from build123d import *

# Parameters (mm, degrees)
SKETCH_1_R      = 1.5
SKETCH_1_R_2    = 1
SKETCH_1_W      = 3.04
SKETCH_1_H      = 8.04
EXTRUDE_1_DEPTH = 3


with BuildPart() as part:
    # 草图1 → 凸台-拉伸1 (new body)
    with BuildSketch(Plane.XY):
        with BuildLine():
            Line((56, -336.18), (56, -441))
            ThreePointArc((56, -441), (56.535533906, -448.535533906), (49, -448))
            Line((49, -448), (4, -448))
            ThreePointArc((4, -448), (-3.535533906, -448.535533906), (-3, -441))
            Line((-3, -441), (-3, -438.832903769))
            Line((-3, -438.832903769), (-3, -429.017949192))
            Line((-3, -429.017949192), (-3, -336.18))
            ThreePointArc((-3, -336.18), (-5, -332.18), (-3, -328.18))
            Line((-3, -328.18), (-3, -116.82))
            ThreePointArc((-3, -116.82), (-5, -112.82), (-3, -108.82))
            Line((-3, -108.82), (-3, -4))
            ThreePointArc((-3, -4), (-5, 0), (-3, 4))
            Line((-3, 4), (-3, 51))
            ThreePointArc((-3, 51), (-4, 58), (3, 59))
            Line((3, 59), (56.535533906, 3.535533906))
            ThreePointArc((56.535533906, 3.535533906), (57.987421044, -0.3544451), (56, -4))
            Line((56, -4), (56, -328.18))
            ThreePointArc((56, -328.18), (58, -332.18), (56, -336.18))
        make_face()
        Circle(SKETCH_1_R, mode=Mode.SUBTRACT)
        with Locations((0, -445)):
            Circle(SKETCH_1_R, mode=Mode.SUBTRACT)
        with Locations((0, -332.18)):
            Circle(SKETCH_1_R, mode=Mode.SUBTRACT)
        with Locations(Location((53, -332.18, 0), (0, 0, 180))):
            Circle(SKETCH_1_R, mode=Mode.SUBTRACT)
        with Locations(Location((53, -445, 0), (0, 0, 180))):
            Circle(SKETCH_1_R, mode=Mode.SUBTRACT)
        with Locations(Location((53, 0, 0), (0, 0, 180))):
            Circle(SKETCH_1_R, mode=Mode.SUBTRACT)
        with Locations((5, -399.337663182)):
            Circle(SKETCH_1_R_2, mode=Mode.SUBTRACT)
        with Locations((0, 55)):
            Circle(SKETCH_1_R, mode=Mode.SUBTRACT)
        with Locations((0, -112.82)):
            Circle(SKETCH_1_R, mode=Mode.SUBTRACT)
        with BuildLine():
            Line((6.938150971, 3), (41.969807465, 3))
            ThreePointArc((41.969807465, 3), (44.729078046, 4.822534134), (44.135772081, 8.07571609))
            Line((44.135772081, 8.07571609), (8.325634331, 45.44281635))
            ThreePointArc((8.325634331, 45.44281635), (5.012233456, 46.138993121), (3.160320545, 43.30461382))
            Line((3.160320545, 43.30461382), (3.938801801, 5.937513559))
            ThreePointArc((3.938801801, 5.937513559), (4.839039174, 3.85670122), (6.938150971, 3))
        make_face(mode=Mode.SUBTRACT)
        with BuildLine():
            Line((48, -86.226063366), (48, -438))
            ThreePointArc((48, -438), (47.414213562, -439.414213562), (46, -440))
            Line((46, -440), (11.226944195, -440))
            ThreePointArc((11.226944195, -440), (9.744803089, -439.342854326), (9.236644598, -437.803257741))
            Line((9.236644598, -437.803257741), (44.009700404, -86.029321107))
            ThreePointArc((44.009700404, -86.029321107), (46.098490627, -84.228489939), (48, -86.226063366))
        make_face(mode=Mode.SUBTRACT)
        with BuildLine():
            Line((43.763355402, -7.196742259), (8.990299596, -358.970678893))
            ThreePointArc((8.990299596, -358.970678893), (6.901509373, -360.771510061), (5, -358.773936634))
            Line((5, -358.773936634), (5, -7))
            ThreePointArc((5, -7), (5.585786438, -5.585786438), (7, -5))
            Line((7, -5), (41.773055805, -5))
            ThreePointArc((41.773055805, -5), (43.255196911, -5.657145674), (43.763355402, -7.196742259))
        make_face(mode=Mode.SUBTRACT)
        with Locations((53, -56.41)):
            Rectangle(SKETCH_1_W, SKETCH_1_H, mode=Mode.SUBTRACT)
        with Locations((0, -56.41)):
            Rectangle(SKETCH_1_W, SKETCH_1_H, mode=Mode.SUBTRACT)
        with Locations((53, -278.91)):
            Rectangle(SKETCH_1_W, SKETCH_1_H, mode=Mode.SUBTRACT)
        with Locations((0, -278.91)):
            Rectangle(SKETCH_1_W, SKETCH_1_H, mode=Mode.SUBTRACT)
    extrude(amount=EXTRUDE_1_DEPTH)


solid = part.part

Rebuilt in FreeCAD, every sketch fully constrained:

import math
import FreeCAD as App
import Part
import Sketcher

V = App.Vector
Q = App.Units.Quantity


def add_polygon(sketch, points):
    """Adds a closed chain of lines whose ends are joined by coincident constraints."""
    first, n = sketch.GeometryCount, len(points)
    for a, b in zip(points, points[1:] + points[:1]):
        sketch.addGeometry(Part.LineSegment(App.Vector(*a, 0), App.Vector(*b, 0)), False)
    for i in range(n):
        sketch.addConstraint(Sketcher.Constraint("Coincident", first + i, 2, first + (i + 1) % n, 1))

doc = App.newDocument("Part")
body = doc.addObject("PartDesign::Body", "Body")

sketch1 = doc.addObject("Sketcher::SketchObject", "Sketch")
body.addObject(sketch1)
sketch1.AttachmentSupport = (doc.XY_Plane, [""])
sketch1.MapMode = "FlatFace"
sketch1.addGeometry(Part.LineSegment(V(56, -441, 0), V(56, -336.18, 0)), False)
sketch1.addGeometry(Part.ArcOfCircle(Part.Circle(V(53, -332.18, 0), V(0, 0, 1), 5), math.radians(-53.130102), math.radians(53.130102)), False)
sketch1.addGeometry(Part.LineSegment(V(56, -328.18, 0), V(56, -4, 0)), False)
sketch1.addGeometry(Part.ArcOfCircle(Part.Circle(V(53, 0, 0), V(0, 0, 1), 5), math.radians(-53.130102), math.radians(45)), False)
sketch1.addGeometry(Part.LineSegment(V(56.535534, 3.535534, 0), V(3, 59, 0)), False)
sketch1.addGeometry(Part.ArcOfCircle(Part.Circle(V(0, 55, 0), V(0, 0, 1), 5), math.radians(53.130102), math.radians(233.130102)), False)
sketch1.addGeometry(Part.LineSegment(V(-3, 51, 0), V(-3, 4, 0)), False)
sketch1.addGeometry(Part.ArcOfCircle(Part.Circle(V(0, 0, 0), V(0, 0, 1), 5), math.radians(126.869898), math.radians(233.130102)), False)
sketch1.addGeometry(Part.LineSegment(V(-3, -4, 0), V(-3, -108.82, 0)), False)
sketch1.addGeometry(Part.ArcOfCircle(Part.Circle(V(0, -112.82, 0), V(0, 0, 1), 5), math.radians(126.869898), math.radians(233.130102)), False)
sketch1.addGeometry(Part.LineSegment(V(-3, -116.82, 0), V(-3, -328.18, 0)), False)
sketch1.addGeometry(Part.ArcOfCircle(Part.Circle(V(0, -332.18, 0), V(0, 0, 1), 5), math.radians(126.869898), math.radians(233.130102)), False)
sketch1.addGeometry(Part.LineSegment(V(-3, -336.18, 0), V(-3, -441, 0)), False)
sketch1.addGeometry(Part.ArcOfCircle(Part.Circle(V(0, -445, 0), V(0, 0, 1), 5), math.radians(126.869898), math.radians(323.130102)), False)
sketch1.addGeometry(Part.LineSegment(V(4, -448, 0), V(49, -448, 0)), False)
sketch1.addGeometry(Part.ArcOfCircle(Part.Circle(V(53, -445, 0), V(0, 0, 1), 5), math.radians(-143.130102), math.radians(53.130102)), False)
sketch1.addGeometry(Part.Circle(V(53, -445, 0), V(0, 0, 1), 1.5), False)
sketch1.addGeometry(Part.Circle(V(53, -332.18, 0), V(0, 0, 1), 1.5), False)
add_polygon(sketch1, [(51.48, -282.93), (51.48, -274.89), (54.52, -274.89), (54.52, -282.93)])
sketch1.addGeometry(Part.LineSegment(V(48, -86.226063, 0), V(48, -438, 0)), False)
sketch1.addGeometry(Part.ArcOfCircle(Part.Circle(V(46, -438, 0), V(0, 0, 1), 2), math.radians(-90), math.radians(0)), False)
sketch1.addGeometry(Part.LineSegment(V(46, -440, 0), V(11.226944, -440, 0)), False)
sketch1.addGeometry(Part.ArcOfCircle(Part.Circle(V(11.226944, -438, 0), V(0, 0, 1), 2), math.radians(174.354619), math.radians(270)), False)
sketch1.addGeometry(Part.LineSegment(V(9.236645, -437.803258, 0), V(44.0097, -86.029321, 0)), False)
sketch1.addGeometry(Part.ArcOfCircle(Part.Circle(V(46, -86.226063, 0), V(0, 0, 1), 2), math.radians(0), math.radians(174.354619)), False)
sketch1.addGeometry(Part.Circle(V(0, -445, 0), V(0, 0, 1), 1.5), False)
sketch1.addGeometry(Part.Circle(V(5, -399.337663, 0), V(0, 0, 1), 1), False)
sketch1.addGeometry(Part.Circle(V(0, -332.18, 0), V(0, 0, 1), 1.5), False)
add_polygon(sketch1, [(-1.52, -282.93), (-1.52, -274.89), (1.52, -274.89), (1.52, -282.93)])
add_polygon(sketch1, [(51.48, -60.43), (51.48, -52.39), (54.52, -52.39), (54.52, -60.43)])
sketch1.addGeometry(Part.Circle(V(53, 0, 0), V(0, 0, 1), 1.5), False)
sketch1.addGeometry(Part.LineSegment(V(43.763355, -7.196742, 0), V(8.9903, -358.970679, 0)), False)
sketch1.addGeometry(Part.ArcOfCircle(Part.Circle(V(7, -358.773937, 0), V(0, 0, 1), 2), math.radians(180), math.radians(354.354619)), False)
sketch1.addGeometry(Part.LineSegment(V(5, -358.773937, 0), V(5, -7, 0)), False)
sketch1.addGeometry(Part.ArcOfCircle(Part.Circle(V(7, -7, 0), V(0, 0, 1), 2), math.radians(90), math.radians(180)), False)
sketch1.addGeometry(Part.LineSegment(V(7, -5, 0), V(41.773056, -5, 0)), False)
sketch1.addGeometry(Part.ArcOfCircle(Part.Circle(V(41.773056, -7, 0), V(0, 0, 1), 2), math.radians(-5.645381), math.radians(90)), False)
sketch1.addGeometry(Part.Circle(V(0, -112.82, 0), V(0, 0, 1), 1.5), False)
sketch1.addGeometry(Part.ArcOfCircle(Part.Circle(V(6.938151, 6, 0), V(0, 0, 1), 3), math.radians(-178.806511), math.radians(-90)), False)
sketch1.addGeometry(Part.LineSegment(V(3.938802, 5.937514, 0), V(3.160321, 43.304614, 0)), False)
sketch1.addGeometry(Part.ArcOfCircle(Part.Circle(V(6.15967, 43.3671, 0), V(0, 0, 1), 3), math.radians(43.781125), math.radians(181.193489)), False)
sketch1.addGeometry(Part.LineSegment(V(8.325634, 45.442816, 0), V(44.135772, 8.075716, 0)), False)
sketch1.addGeometry(Part.ArcOfCircle(Part.Circle(V(41.969807, 6, 0), V(0, 0, 1), 3), math.radians(-90), math.radians(43.781125)), False)
sketch1.addGeometry(Part.LineSegment(V(41.969807, 3, 0), V(6.938151, 3, 0)), False)
add_polygon(sketch1, [(-1.52, -60.43), (-1.52, -52.39), (1.52, -52.39), (1.52, -60.43)])
sketch1.addGeometry(Part.Circle(V(0, 0, 0), V(0, 0, 1), 1.5), False)
sketch1.addGeometry(Part.Circle(V(0, 55, 0), V(0, 0, 1), 1.5), False)
sketch1.addConstraint(Sketcher.Constraint("Coincident", 0, 2, 1, 1))
sketch1.addConstraint(Sketcher.Constraint("Coincident", 1, 2, 2, 1))
sketch1.addConstraint(Sketcher.Constraint("Coincident", 2, 2, 3, 1))
sketch1.addConstraint(Sketcher.Constraint("Coincident", 3, 2, 4, 1))
sketch1.addConstraint(Sketcher.Constraint("Coincident", 4, 2, 5, 1))
sketch1.addConstraint(Sketcher.Constraint("Coincident", 5, 2, 6, 1))
sketch1.addConstraint(Sketcher.Constraint("Coincident", 6, 2, 7, 1))
sketch1.addConstraint(Sketcher.Constraint("Coincident", 7, 2, 8, 1))
sketch1.addConstraint(Sketcher.Constraint("Coincident", 8, 2, 9, 1))
sketch1.addConstraint(Sketcher.Constraint("Coincident", 9, 2, 10, 1))
sketch1.addConstraint(Sketcher.Constraint("Coincident", 10, 2, 11, 1))
sketch1.addConstraint(Sketcher.Constraint("Coincident", 11, 2, 12, 1))
sketch1.addConstraint(Sketcher.Constraint("Coincident", 12, 2, 13, 1))
sketch1.addConstraint(Sketcher.Constraint("Coincident", 13, 2, 14, 1))
sketch1.addConstraint(Sketcher.Constraint("Coincident", 14, 2, 15, 1))
sketch1.addConstraint(Sketcher.Constraint("Coincident", 15, 2, 0, 1))
sketch1.addConstraint(Sketcher.Constraint("Coincident", 22, 2, 23, 2))
sketch1.addConstraint(Sketcher.Constraint("Coincident", 23, 1, 24, 1))
sketch1.addConstraint(Sketcher.Constraint("Coincident", 24, 2, 25, 2))
sketch1.addConstraint(Sketcher.Constraint("Coincident", 25, 1, 26, 1))
sketch1.addConstraint(Sketcher.Constraint("Coincident", 26, 2, 27, 2))
sketch1.addConstraint(Sketcher.Constraint("Coincident", 27, 1, 22, 1))
sketch1.addConstraint(Sketcher.Constraint("Coincident", 40, 2, 41, 2))
sketch1.addConstraint(Sketcher.Constraint("Coincident", 41, 1, 42, 1))
sketch1.addConstraint(Sketcher.Constraint("Coincident", 42, 2, 43, 2))
sketch1.addConstraint(Sketcher.Constraint("Coincident", 43, 1, 44, 1))
sketch1.addConstraint(Sketcher.Constraint("Coincident", 44, 2, 45, 2))
sketch1.addConstraint(Sketcher.Constraint("Coincident", 45, 1, 40, 1))
sketch1.addConstraint(Sketcher.Constraint("Coincident", 47, 1, 48, 1))
sketch1.addConstraint(Sketcher.Constraint("Coincident", 48, 2, 49, 2))
sketch1.addConstraint(Sketcher.Constraint("Coincident", 49, 1, 50, 1))
sketch1.addConstraint(Sketcher.Constraint("Coincident", 50, 2, 51, 2))
sketch1.addConstraint(Sketcher.Constraint("Coincident", 51, 1, 52, 1))
sketch1.addConstraint(Sketcher.Constraint("Coincident", 52, 2, 47, 2))
sketch1.addConstraint(Sketcher.Constraint("Vertical", 0))
sketch1.addConstraint(Sketcher.Constraint("Vertical", 2))
sketch1.addConstraint(Sketcher.Constraint("Vertical", 6))
sketch1.addConstraint(Sketcher.Constraint("Vertical", 8))
sketch1.addConstraint(Sketcher.Constraint("Vertical", 10))
sketch1.addConstraint(Sketcher.Constraint("Vertical", 12))
sketch1.addConstraint(Sketcher.Constraint("Horizontal", 14))
sketch1.addConstraint(Sketcher.Constraint("Vertical", 18))
sketch1.addConstraint(Sketcher.Constraint("Horizontal", 19))
sketch1.addConstraint(Sketcher.Constraint("Vertical", 20))
sketch1.addConstraint(Sketcher.Constraint("Horizontal", 21))
sketch1.addConstraint(Sketcher.Constraint("Vertical", 22))
sketch1.addConstraint(Sketcher.Constraint("Horizontal", 24))
sketch1.addConstraint(Sketcher.Constraint("Vertical", 31))
sketch1.addConstraint(Sketcher.Constraint("Horizontal", 32))
sketch1.addConstraint(Sketcher.Constraint("Vertical", 33))
sketch1.addConstraint(Sketcher.Constraint("Horizontal", 34))
sketch1.addConstraint(Sketcher.Constraint("Vertical", 35))
sketch1.addConstraint(Sketcher.Constraint("Horizontal", 36))
sketch1.addConstraint(Sketcher.Constraint("Vertical", 37))
sketch1.addConstraint(Sketcher.Constraint("Horizontal", 38))
sketch1.addConstraint(Sketcher.Constraint("Vertical", 42))
sketch1.addConstraint(Sketcher.Constraint("Horizontal", 44))
sketch1.addConstraint(Sketcher.Constraint("Horizontal", 52))
sketch1.addConstraint(Sketcher.Constraint("Vertical", 53))
sketch1.addConstraint(Sketcher.Constraint("Horizontal", 54))
sketch1.addConstraint(Sketcher.Constraint("Vertical", 55))
sketch1.addConstraint(Sketcher.Constraint("Horizontal", 56))
sketch1.addConstraint(Sketcher.Constraint("Coincident", 7, 3, -1, 1))
sketch1.addConstraint(Sketcher.Constraint("Coincident", 57, 3, -1, 1))
sketch1.addConstraint(Sketcher.Constraint("Coincident", 16, 3, 15, 3))
sketch1.addConstraint(Sketcher.Constraint("Coincident", 17, 3, 1, 3))
sketch1.addConstraint(Sketcher.Constraint("Coincident", 28, 3, 13, 3))
sketch1.addConstraint(Sketcher.Constraint("Coincident", 30, 3, 11, 3))
sketch1.addConstraint(Sketcher.Constraint("Coincident", 39, 3, 3, 3))
sketch1.addConstraint(Sketcher.Constraint("Coincident", 46, 3, 9, 3))
sketch1.addConstraint(Sketcher.Constraint("Coincident", 58, 3, 5, 3))
sketch1.addConstraint(Sketcher.Constraint("PointOnObject", 3, 3, -1))
sketch1.addConstraint(Sketcher.Constraint("PointOnObject", 5, 3, -2))
sketch1.addConstraint(Sketcher.Constraint("PointOnObject", 9, 3, -2))
sketch1.addConstraint(Sketcher.Constraint("PointOnObject", 11, 3, -2))
sketch1.addConstraint(Sketcher.Constraint("PointOnObject", 13, 3, -2))
sketch1.addConstraint(Sketcher.Constraint("Diameter", 16, Q("3 mm")))
sketch1.addConstraint(Sketcher.Constraint("Diameter", 17, Q("3 mm")))
sketch1.addConstraint(Sketcher.Constraint("Diameter", 28, Q("3 mm")))
sketch1.addConstraint(Sketcher.Constraint("Diameter", 29, Q("2 mm")))
sketch1.addConstraint(Sketcher.Constraint("Diameter", 30, Q("3 mm")))
sketch1.addConstraint(Sketcher.Constraint("Diameter", 39, Q("3 mm")))
sketch1.addConstraint(Sketcher.Constraint("Diameter", 46, Q("3 mm")))
sketch1.addConstraint(Sketcher.Constraint("Diameter", 57, Q("3 mm")))
sketch1.addConstraint(Sketcher.Constraint("Diameter", 58, Q("3 mm")))
sketch1.addConstraint(Sketcher.Constraint("Radius", 1, Q("5 mm")))
sketch1.addConstraint(Sketcher.Constraint("Radius", 3, Q("5 mm")))
sketch1.addConstraint(Sketcher.Constraint("Radius", 5, Q("5 mm")))
sketch1.addConstraint(Sketcher.Constraint("Radius", 7, Q("5 mm")))
sketch1.addConstraint(Sketcher.Constraint("Radius", 9, Q("5 mm")))
sketch1.addConstraint(Sketcher.Constraint("Radius", 11, Q("5 mm")))
sketch1.addConstraint(Sketcher.Constraint("Radius", 13, Q("5 mm")))
sketch1.addConstraint(Sketcher.Constraint("Radius", 15, Q("5 mm")))
sketch1.addConstraint(Sketcher.Constraint("Radius", 23, Q("2 mm")))
sketch1.addConstraint(Sketcher.Constraint("Radius", 25, Q("2 mm")))
sketch1.addConstraint(Sketcher.Constraint("Radius", 27, Q("2 mm")))
sketch1.addConstraint(Sketcher.Constraint("Radius", 41, Q("2 mm")))
sketch1.addConstraint(Sketcher.Constraint("Radius", 43, Q("2 mm")))
sketch1.addConstraint(Sketcher.Constraint("Radius", 45, Q("2 mm")))
sketch1.addConstraint(Sketcher.Constraint("Radius", 47, Q("3 mm")))
sketch1.addConstraint(Sketcher.Constraint("Radius", 49, Q("3 mm")))
sketch1.addConstraint(Sketcher.Constraint("Radius", 51, Q("3 mm")))
sketch1.addConstraint(Sketcher.Constraint("DistanceX", 14, 1, 14, 2, Q("45 mm")))
sketch1.addConstraint(Sketcher.Constraint("DistanceY", 6, 2, 6, 1, Q("47 mm")))
sketch1.addConstraint(Sketcher.Constraint("DistanceX", -1, 1, 1, 3, Q("53 mm")))
sketch1.addConstraint(Sketcher.Constraint("DistanceX", -1, 1, 3, 3, Q("53 mm")))
sketch1.addConstraint(Sketcher.Constraint("DistanceY", -1, 1, 5, 3, Q("55 mm")))
sketch1.addConstraint(Sketcher.Constraint("DistanceY", 13, 3, -1, 1, Q("445 mm")))
sketch1.addConstraint(Sketcher.Constraint("DistanceX", -1, 1, 15, 3, Q("53 mm")))
sketch1.addConstraint(Sketcher.Constraint("DistanceY", 15, 3, -1, 1, Q("445 mm")))
sketch1.addConstraint(Sketcher.Constraint("DistanceX", -1, 1, 23, 3, Q("46 mm")))
sketch1.addConstraint(Sketcher.Constraint("DistanceY", 23, 3, -1, 1, Q("438 mm")))
sketch1.addConstraint(Sketcher.Constraint("DistanceX", -1, 1, 29, 3, Q("5 mm")))
sketch1.addConstraint(Sketcher.Constraint("DistanceX", -1, 1, 41, 3, Q("7 mm")))
sketch1.addConstraint(Sketcher.Constraint("DistanceY", 43, 3, -1, 1, Q("7 mm")))
sketch1.addConstraint(Sketcher.Constraint("DistanceY", -1, 1, 47, 3, Q("6 mm")))
sketch1.addConstraint(Sketcher.Constraint("DistanceX", -1, 1, 0, 2, Q("56 mm")))
sketch1.addConstraint(Sketcher.Constraint("DistanceX", -1, 1, 1, 2, Q("56 mm")))
sketch1.addConstraint(Sketcher.Constraint("DistanceX", -1, 1, 4, 2, Q("3 mm")))
sketch1.addConstraint(Sketcher.Constraint("DistanceX", 7, 2, -1, 1, Q("3 mm")))
sketch1.addConstraint(Sketcher.Constraint("DistanceX", 9, 2, -1, 1, Q("3 mm")))
sketch1.addConstraint(Sketcher.Constraint("DistanceX", 11, 2, -1, 1, Q("3 mm")))
sketch1.addConstraint(Sketcher.Constraint("DistanceY", 22, 2, -1, 1, Q("438 mm")))
sketch1.addConstraint(Sketcher.Constraint("DistanceX", -1, 1, 23, 1, Q("46 mm")))
sketch1.addConstraint(Sketcher.Constraint("DistanceY", 42, 2, -1, 1, Q("7 mm")))
sketch1.addConstraint(Sketcher.Constraint("DistanceX", -1, 1, 43, 1, Q("7 mm")))
sketch1.addConstraint(Sketcher.Constraint("DistanceX", 19, 1, 19, 2, Q("3.04 mm")))
sketch1.addConstraint(Sketcher.Constraint("DistanceX", 32, 1, 32, 2, Q("3.04 mm")))
sketch1.addConstraint(Sketcher.Constraint("DistanceX", 36, 1, 36, 2, Q("3.04 mm")))
sketch1.addConstraint(Sketcher.Constraint("DistanceX", 54, 1, 54, 2, Q("3.04 mm")))
sketch1.addConstraint(Sketcher.Constraint("DistanceY", 0, 1, 0, 2, Q("104.82 mm")))
sketch1.addConstraint(Sketcher.Constraint("DistanceY", 8, 2, 8, 1, Q("104.82 mm")))
sketch1.addConstraint(Sketcher.Constraint("DistanceY", 10, 2, 10, 1, Q("211.36 mm")))
sketch1.addConstraint(Sketcher.Constraint("DistanceY", 18, 1, 18, 2, Q("8.04 mm")))
sketch1.addConstraint(Sketcher.Constraint("DistanceY", 31, 1, 31, 2, Q("8.04 mm")))
sketch1.addConstraint(Sketcher.Constraint("DistanceY", 35, 1, 35, 2, Q("8.04 mm")))
sketch1.addConstraint(Sketcher.Constraint("DistanceY", 53, 1, 53, 2, Q("8.04 mm")))
sketch1.addConstraint(Sketcher.Constraint("DistanceX", -1, 1, 18, 2, Q("51.48 mm")))
sketch1.addConstraint(Sketcher.Constraint("DistanceY", 18, 2, -1, 1, Q("274.89 mm")))
sketch1.addConstraint(Sketcher.Constraint("DistanceX", 31, 2, -1, 1, Q("1.52 mm")))
sketch1.addConstraint(Sketcher.Constraint("DistanceY", 31, 2, -1, 1, Q("274.89 mm")))
sketch1.addConstraint(Sketcher.Constraint("DistanceX", -1, 1, 35, 2, Q("51.48 mm")))
sketch1.addConstraint(Sketcher.Constraint("DistanceY", 35, 2, -1, 1, Q("52.39 mm")))
sketch1.addConstraint(Sketcher.Constraint("DistanceX", 53, 2, -1, 1, Q("1.52 mm")))
sketch1.addConstraint(Sketcher.Constraint("DistanceY", 53, 2, -1, 1, Q("52.39 mm")))
sketch1.addConstraint(Sketcher.Constraint("DistanceY", -1, 1, 49, 3, Q("43.3671 mm")))
sketch1.addConstraint(Sketcher.Constraint("DistanceX", -1, 1, 26, 2, Q("44.0097 mm")))
sketch1.addConstraint(Sketcher.Constraint("DistanceX", -1, 1, 40, 2, Q("8.9903 mm")))
sketch1.addConstraint(Sketcher.Constraint("DistanceX", -1, 1, 47, 1, Q("3.938802 mm")))
sketch1.addConstraint(Sketcher.Constraint("Distance", 48, Q("37.375209 mm")))
sketch1.addConstraint(Sketcher.Constraint("DistanceX", 24, 2, 24, 1, Q("34.773056 mm")))
sketch1.addConstraint(Sketcher.Constraint("DistanceX", 44, 1, 44, 2, Q("34.773056 mm")))
sketch1.addConstraint(Sketcher.Constraint("DistanceX", 52, 2, 52, 1, Q("35.031656 mm")))
sketch1.addConstraint(Sketcher.Constraint("DistanceY", 22, 2, 22, 1, Q("351.773937 mm")))
sketch1.addConstraint(Sketcher.Constraint("DistanceY", 42, 1, 42, 2, Q("351.773937 mm")))
sketch1.addConstraint(Sketcher.Constraint("DistanceX", -1, 1, 47, 3, Q("6.938151 mm")))
sketch1.addConstraint(Sketcher.Constraint("DistanceX", -1, 1, 49, 3, Q("6.15967 mm")))
sketch1.addConstraint(Sketcher.Constraint("DistanceY", 26, 2, -1, 1, Q("86.029321 mm")))
sketch1.addConstraint(Sketcher.Constraint("DistanceY", 40, 2, -1, 1, Q("358.970679 mm")))
sketch1.addConstraint(Sketcher.Constraint("DistanceX", -1, 1, 52, 2, Q("6.938151 mm")))
sketch1.addConstraint(Sketcher.Constraint("Distance", 4, Q("77.086707 mm")))
sketch1.addConstraint(Sketcher.Constraint("Distance", 26, Q("353.488427 mm")))
sketch1.addConstraint(Sketcher.Constraint("Distance", 40, Q("353.488427 mm")))
sketch1.addConstraint(Sketcher.Constraint("Distance", 50, Q("51.755832 mm")))
sketch1.addConstraint(Sketcher.Constraint("DistanceX", -1, 1, 25, 3, Q("11.226944 mm")))
sketch1.addConstraint(Sketcher.Constraint("DistanceY", 29, 3, -1, 1, Q("399.337663 mm")))
sketch1.addConstraint(Sketcher.Constraint("DistanceX", -1, 1, 45, 3, Q("41.773056 mm")))
sketch1.addConstraint(Sketcher.Constraint("DistanceX", -1, 1, 51, 3, Q("41.969807 mm")))
sketch1.addConstraint(Sketcher.Constraint("DistanceX", -1, 1, 49, 1, Q("8.325634 mm")))
pad1 = doc.addObject("PartDesign::Pad", "Pad")
body.addObject(pad1)
pad1.Profile = sketch1
pad1.Length = 3

doc.recompute()
